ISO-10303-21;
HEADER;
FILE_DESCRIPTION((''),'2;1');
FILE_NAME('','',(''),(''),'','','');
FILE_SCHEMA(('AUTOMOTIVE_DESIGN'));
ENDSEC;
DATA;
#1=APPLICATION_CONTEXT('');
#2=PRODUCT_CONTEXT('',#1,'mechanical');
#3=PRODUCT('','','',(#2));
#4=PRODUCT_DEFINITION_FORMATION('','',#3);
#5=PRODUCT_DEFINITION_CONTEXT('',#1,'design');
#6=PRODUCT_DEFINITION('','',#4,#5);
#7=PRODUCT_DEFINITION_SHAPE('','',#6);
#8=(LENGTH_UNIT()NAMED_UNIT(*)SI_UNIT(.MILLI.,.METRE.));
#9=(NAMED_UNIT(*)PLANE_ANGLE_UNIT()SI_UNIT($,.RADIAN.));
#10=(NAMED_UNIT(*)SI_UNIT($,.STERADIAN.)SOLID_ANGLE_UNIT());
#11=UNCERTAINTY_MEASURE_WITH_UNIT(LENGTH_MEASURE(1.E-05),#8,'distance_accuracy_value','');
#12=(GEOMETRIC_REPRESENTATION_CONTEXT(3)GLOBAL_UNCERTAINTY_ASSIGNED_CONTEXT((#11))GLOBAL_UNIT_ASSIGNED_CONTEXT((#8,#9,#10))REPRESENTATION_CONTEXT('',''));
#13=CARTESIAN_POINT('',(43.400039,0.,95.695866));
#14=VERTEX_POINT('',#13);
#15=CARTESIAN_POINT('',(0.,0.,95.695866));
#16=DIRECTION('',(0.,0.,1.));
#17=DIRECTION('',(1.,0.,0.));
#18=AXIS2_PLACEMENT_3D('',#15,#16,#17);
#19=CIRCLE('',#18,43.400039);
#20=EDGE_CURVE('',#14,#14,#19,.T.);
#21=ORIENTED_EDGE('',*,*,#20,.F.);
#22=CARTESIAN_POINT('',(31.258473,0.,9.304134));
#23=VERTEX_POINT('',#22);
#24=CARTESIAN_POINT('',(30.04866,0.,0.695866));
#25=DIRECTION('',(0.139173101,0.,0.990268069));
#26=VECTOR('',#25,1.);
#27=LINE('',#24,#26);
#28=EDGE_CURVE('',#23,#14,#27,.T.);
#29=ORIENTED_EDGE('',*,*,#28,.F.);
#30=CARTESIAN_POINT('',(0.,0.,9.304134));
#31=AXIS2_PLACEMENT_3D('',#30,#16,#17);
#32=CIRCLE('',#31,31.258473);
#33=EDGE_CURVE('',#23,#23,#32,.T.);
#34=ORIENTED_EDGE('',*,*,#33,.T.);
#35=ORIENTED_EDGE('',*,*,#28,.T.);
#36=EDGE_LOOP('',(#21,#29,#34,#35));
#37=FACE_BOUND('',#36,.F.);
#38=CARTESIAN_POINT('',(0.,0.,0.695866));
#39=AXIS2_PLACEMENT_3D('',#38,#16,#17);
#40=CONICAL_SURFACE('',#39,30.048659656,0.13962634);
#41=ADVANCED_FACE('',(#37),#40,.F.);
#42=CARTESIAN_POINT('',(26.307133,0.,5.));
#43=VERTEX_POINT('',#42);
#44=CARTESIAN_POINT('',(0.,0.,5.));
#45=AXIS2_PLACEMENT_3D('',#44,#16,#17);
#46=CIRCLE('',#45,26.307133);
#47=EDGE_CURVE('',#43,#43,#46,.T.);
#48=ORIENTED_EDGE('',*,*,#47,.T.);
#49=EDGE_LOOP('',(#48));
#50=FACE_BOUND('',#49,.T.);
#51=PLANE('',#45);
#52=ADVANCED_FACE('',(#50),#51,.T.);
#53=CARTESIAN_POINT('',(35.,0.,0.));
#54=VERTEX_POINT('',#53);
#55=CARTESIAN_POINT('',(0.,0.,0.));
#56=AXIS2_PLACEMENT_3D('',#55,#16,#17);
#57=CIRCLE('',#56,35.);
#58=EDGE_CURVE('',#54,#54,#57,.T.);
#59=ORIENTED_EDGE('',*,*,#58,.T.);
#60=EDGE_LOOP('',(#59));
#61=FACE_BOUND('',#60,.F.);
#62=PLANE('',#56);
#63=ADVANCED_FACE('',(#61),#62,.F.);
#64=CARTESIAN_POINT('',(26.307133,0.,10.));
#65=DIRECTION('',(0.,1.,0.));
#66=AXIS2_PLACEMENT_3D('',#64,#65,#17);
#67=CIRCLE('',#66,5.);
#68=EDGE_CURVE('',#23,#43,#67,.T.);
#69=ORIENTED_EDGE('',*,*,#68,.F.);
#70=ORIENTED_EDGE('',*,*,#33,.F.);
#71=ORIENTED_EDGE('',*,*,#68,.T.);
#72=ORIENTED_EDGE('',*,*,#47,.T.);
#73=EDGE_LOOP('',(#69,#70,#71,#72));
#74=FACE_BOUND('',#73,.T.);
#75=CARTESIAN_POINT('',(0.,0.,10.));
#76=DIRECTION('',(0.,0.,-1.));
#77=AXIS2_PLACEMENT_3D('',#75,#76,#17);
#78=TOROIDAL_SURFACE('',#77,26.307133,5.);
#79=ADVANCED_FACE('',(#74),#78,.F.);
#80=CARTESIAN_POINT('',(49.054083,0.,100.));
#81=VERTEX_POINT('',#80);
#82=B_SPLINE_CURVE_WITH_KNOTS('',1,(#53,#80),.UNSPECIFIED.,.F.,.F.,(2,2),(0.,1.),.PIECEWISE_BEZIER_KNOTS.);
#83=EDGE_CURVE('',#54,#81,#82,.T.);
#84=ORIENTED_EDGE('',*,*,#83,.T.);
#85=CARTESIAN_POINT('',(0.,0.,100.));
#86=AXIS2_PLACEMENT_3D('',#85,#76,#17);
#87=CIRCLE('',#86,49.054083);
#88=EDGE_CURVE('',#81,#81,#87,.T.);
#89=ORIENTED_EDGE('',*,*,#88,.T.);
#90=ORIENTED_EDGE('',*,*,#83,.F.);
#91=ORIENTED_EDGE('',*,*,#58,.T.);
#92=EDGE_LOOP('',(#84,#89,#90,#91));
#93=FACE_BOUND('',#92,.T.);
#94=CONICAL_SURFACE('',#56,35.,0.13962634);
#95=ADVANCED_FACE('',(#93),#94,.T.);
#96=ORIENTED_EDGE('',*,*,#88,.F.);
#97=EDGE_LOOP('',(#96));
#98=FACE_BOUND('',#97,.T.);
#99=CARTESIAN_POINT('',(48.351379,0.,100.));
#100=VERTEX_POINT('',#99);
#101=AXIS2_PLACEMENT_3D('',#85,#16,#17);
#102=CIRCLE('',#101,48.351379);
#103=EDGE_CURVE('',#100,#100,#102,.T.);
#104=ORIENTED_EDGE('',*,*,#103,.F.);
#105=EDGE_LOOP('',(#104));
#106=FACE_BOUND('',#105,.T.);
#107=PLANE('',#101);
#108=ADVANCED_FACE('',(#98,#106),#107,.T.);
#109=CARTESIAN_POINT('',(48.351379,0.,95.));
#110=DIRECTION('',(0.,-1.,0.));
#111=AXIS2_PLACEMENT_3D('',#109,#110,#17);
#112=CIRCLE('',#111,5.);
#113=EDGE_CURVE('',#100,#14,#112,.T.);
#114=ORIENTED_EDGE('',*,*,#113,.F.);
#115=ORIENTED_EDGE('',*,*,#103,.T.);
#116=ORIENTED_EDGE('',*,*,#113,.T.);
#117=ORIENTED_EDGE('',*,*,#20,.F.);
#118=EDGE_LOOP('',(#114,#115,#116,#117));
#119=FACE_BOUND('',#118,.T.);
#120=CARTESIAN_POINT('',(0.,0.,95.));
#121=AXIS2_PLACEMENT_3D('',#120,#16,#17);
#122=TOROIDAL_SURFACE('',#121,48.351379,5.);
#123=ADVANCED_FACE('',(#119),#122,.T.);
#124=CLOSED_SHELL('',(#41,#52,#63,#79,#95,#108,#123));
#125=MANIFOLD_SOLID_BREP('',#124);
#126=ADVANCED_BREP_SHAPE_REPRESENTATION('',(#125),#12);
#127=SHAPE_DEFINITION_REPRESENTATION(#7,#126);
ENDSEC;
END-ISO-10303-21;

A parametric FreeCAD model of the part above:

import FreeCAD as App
import Part
import Sketcher


def edges_at(feature, points):
    """Names of the edges that pass closest to the given points."""
    edges = feature.Shape.Edges
    near = lambda p: min(range(len(edges)), key=lambda i: edges[i].distToShape(Part.Vertex(*p))[0])
    return sorted({f"Edge{near(p) + 1}" for p in points})


def faces_at(feature, points):
    """Names of the faces that lie closest to the given points."""
    faces = feature.Shape.Faces
    near = lambda p: min(range(len(faces)), key=lambda i: faces[i].distToShape(Part.Vertex(*p))[0])
    return sorted({f"Face{near(p) + 1}" for p in points})

doc = App.newDocument("Part")
body = doc.addObject("PartDesign::Body", "Body")

# Sketch on XY plane
sketch1 = body.newObject("Sketcher::SketchObject", "Sketch")
sketch1.AttachmentSupport = (doc.getObject("XY_Plane"), [""])
sketch1.MapMode = "FlatFace"
sketch1.addGeometry(Part.Circle(App.Vector(0, 0, 0), App.Vector(0, 0, 1), 35), False)
sketch1.addConstraint([
    Sketcher.Constraint("Coincident", 0, 3, -1, 1),
    Sketcher.Constraint("Diameter", 0, 70.0),
])
pad1 = body.newObject("PartDesign::Pad", "Pad")
pad1.Profile = sketch1
pad1.Length = 100
pad1.TaperAngle = 8
doc.recompute()

thickness = body.newObject("PartDesign::Thickness", "Thickness")
thickness.Base = (pad1, faces_at(pad1, [(0, 0, 100)]))
thickness.Value = 5
thickness.Reversed = True
thickness.Join = "Intersection"
doc.recompute()

fillet = body.newObject("PartDesign::Fillet", "Fillet")
fillet.Base = (thickness, edges_at(thickness, [(-44.005, 0, 100), (-30.654, 0, 5)]))
fillet.Radius = 5

doc.recompute()
